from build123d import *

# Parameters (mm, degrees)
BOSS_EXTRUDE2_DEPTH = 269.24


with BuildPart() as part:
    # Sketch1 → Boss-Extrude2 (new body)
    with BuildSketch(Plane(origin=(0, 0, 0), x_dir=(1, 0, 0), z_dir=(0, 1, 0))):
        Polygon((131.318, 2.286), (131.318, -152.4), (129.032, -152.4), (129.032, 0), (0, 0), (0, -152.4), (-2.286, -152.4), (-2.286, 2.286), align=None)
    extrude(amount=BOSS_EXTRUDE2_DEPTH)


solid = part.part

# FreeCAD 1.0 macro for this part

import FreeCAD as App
import Part
import Sketcher
from FreeCAD import Vector
Q = App.Units.Quantity


def add_polygon(sketch, points):
    """Adds a closed chain of lines whose ends are joined by coincident constraints."""
    first, n = sketch.GeometryCount, len(points)
    for a, b in zip(points, points[1:] + points[:1]):
        sketch.addGeometry(Part.LineSegment(App.Vector(*a, 0), App.Vector(*b, 0)), False)
    for i in range(n):
        sketch.addConstraint(Sketcher.Constraint("Coincident", first + i, 2, first + (i + 1) % n, 1))

doc = App.newDocument("Part")
body = doc.addObject("PartDesign::Body", "Body")

# Sketch on XZ plane
sketch1 = body.newObject("Sketcher::SketchObject", "Sketch")
sketch1.AttachmentSupport = (doc.getObject("XZ_Plane"), [""])
sketch1.MapMode = "FlatFace"
add_polygon(sketch1, [(131.318, 152.4), (131.318, -2.286), (-2.286, -2.286), (-2.286, 152.4), (0, 152.4), (0, 0), (129.032, 0), (129.032, 152.4)])  # lines 0-7
sketch1.addConstraint(Sketcher.Constraint("Vertical", 0))
sketch1.addConstraint(Sketcher.Constraint("Horizontal", 1))
sketch1.addConstraint(Sketcher.Constraint("Vertical", 2))
sketch1.addConstraint(Sketcher.Constraint("Horizontal", 3))
sketch1.addConstraint(Sketcher.Constraint("Vertical", 4))
sketch1.addConstraint(Sketcher.Constraint("Horizontal", 5))
sketch1.addConstraint(Sketcher.Constraint("Vertical", 6))
sketch1.addConstraint(Sketcher.Constraint("Horizontal", 7))
sketch1.addConstraint(Sketcher.Constraint("Coincident", 4, 2, -1, 1))
sketch1.addConstraint(Sketcher.Constraint("Horizontal", 3, 2, 6, 2))
sketch1.addConstraint(Sketcher.Constraint("Equal", 3, 7))
sketch1.addConstraint(Sketcher.Constraint("DistanceY", 4, 2, 4, 1, Q("6 in")))
sketch1.addConstraint(Sketcher.Constraint("DistanceX", 1, 2, 1, 1, Q("5.26 in")))
sketch1.addConstraint(Sketcher.Constraint("DistanceX", 3, 1, 3, 2, Q("0.09 in")))
sketch1.addConstraint(Sketcher.Constraint("DistanceY", 0, 2, 0, 1, Q("6.09 in")))
pad1 = body.newObject("PartDesign::Pad", "Pad")
pad1.Profile = sketch1
pad1.Length = Q("10.6 in")
pad1.Reversed = True

doc.recompute()
